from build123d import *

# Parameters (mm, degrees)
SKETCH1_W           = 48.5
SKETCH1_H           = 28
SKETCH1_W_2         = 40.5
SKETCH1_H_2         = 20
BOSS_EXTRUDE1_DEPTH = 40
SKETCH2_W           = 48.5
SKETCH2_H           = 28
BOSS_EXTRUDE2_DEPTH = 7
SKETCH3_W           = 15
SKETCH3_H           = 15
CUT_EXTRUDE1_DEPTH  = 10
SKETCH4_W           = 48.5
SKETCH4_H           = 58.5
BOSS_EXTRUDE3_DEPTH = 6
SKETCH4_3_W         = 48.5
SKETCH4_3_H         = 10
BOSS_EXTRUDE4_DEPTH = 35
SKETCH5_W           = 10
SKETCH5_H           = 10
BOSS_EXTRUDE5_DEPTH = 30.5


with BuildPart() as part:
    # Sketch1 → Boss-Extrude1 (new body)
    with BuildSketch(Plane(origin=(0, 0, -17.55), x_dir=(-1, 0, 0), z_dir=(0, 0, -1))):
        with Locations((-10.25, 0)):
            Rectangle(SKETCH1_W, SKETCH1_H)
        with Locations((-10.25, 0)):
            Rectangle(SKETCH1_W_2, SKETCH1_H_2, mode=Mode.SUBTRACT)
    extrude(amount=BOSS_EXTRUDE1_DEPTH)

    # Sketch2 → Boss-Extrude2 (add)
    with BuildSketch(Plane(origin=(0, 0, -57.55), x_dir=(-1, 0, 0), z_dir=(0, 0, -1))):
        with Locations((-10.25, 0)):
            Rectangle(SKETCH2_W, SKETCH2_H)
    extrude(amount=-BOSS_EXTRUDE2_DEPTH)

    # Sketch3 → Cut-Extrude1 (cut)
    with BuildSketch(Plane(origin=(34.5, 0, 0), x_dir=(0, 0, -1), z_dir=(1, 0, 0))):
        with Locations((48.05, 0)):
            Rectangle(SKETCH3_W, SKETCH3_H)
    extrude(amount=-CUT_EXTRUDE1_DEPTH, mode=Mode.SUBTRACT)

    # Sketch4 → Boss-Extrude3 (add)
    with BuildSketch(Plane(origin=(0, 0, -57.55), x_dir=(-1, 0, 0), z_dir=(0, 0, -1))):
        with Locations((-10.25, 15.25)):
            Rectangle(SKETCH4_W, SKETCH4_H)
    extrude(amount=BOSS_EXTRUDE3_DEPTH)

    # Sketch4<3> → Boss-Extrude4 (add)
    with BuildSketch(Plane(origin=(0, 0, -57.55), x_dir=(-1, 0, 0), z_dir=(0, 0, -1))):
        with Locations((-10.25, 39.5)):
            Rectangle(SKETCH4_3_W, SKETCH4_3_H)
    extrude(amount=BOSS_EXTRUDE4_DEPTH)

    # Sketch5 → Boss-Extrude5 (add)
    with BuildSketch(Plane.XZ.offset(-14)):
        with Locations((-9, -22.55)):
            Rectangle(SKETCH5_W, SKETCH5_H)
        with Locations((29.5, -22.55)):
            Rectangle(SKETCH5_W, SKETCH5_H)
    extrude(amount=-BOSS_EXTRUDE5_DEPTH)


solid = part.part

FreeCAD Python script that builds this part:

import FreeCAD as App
import Part
import Sketcher

V = App.Vector

doc = App.newDocument("Part")
body = doc.addObject("PartDesign::Body", "Body")

# Sketch on XY plane
sketch1 = doc.addObject("Sketcher::SketchObject", "Sketch")
body.addObject(sketch1)
sketch1.AttachmentSupport = (doc.XY_Plane, [""])
sketch1.MapMode = "FlatFace"
sketch1.AttachmentOffset = App.Placement(V(0, 0, -17.55), App.Rotation())
sketch1.addGeometry([
    Part.LineSegment(V(34, 14, 0), V(34, -14, 0)),  # 0
    Part.LineSegment(V(34, -14, 0), V(-14, -14, 0)),  # 1
    Part.LineSegment(V(-14, -14, 0), V(-14, 14, 0)),  # 2
    Part.LineSegment(V(-14, 14, 0), V(34, 14, 0)),  # 3
    Part.LineSegment(V(-10, -10, 0), V(30, -10, 0)),  # 4
    Part.LineSegment(V(30, -10, 0), V(30, 10, 0)),  # 5
    Part.LineSegment(V(30, 10, 0), V(-10, 10, 0)),  # 6
    Part.LineSegment(V(-10, 10, 0), V(-10, -10, 0)),  # 7
], False)
sketch1.addConstraint([
    Sketcher.Constraint("Coincident", 0, 2, 1, 1),
    Sketcher.Constraint("Coincident", 1, 2, 2, 1),
    Sketcher.Constraint("Coincident", 2, 2, 3, 1),
    Sketcher.Constraint("Coincident", 3, 2, 0, 1),
    Sketcher.Constraint("Coincident", 4, 2, 5, 1),
    Sketcher.Constraint("Coincident", 5, 2, 6, 1),
    Sketcher.Constraint("Coincident", 6, 2, 7, 1),
    Sketcher.Constraint("Coincident", 7, 2, 4, 1),
    Sketcher.Constraint("Vertical", 0),
    Sketcher.Constraint("Horizontal", 1),
    Sketcher.Constraint("Vertical", 2),
    Sketcher.Constraint("Horizontal", 3),
    Sketcher.Constraint("Horizontal", 4),
    Sketcher.Constraint("Vertical", 5),
    Sketcher.Constraint("Horizontal", 6),
    Sketcher.Constraint("Vertical", 7),
    Sketcher.Constraint("DistanceY", 0, 2, 0, 1, 28.0),
    Sketcher.Constraint("DistanceY", 5, 1, 5, 2, 20.0),
    Sketcher.Constraint("DistanceX", 1, 2, 1, 1, 48.5),
    Sketcher.Constraint("DistanceX", 4, 1, 4, 2, 40.5),
    Sketcher.Constraint("DistanceY", 0, 2, -1, 1, 14.0),
    Sketcher.Constraint("DistanceX", 1, 2, -1, 1, 14.0),
    Sketcher.Constraint("DistanceY", 4, 2, -1, 1, 10.0),
    Sketcher.Constraint("DistanceX", 6, 2, -1, 1, 10.0),
])
pad1 = doc.addObject("PartDesign::Pad", "Pad")
body.addObject(pad1)
pad1.Profile = sketch1
pad1.Length = 40
pad1.Reversed = True

# Sketch on XY plane
sketch2 = doc.addObject("Sketcher::SketchObject", "Sketch001")
body.addObject(sketch2)
sketch2.AttachmentSupport = (doc.XY_Plane, [""])
sketch2.MapMode = "FlatFace"
sketch2.AttachmentOffset = App.Placement(V(0, 0, -57.55), App.Rotation())
sketch2.addGeometry([
    Part.LineSegment(V(34, 14, 0), V(34, -14, 0)),
    Part.LineSegment(V(34, -14, 0), V(-14, -14, 0)),
    Part.LineSegment(V(-14, -14, 0), V(-14, 14, 0)),
    Part.LineSegment(V(-14, 14, 0), V(34, 14, 0)),
], False)
sketch2.addConstraint([
    Sketcher.Constraint("Coincident", 0, 2, 1, 1),
    Sketcher.Constraint("Coincident", 1, 2, 2, 1),
    Sketcher.Constraint("Coincident", 2, 2, 3, 1),
    Sketcher.Constraint("Coincident", 3, 2, 0, 1),
    Sketcher.Constraint("Vertical", 0),
    Sketcher.Constraint("Horizontal", 1),
    Sketcher.Constraint("Vertical", 2),
    Sketcher.Constraint("Horizontal", 3),
    Sketcher.Constraint("DistanceY", 0, 2, 0, 1, 28.0),
    Sketcher.Constraint("DistanceX", 1, 2, 1, 1, 48.5),
    Sketcher.Constraint("DistanceY", 0, 2, -1, 1, 14.0),
    Sketcher.Constraint("DistanceX", 1, 2, -1, 1, 14.0),
])
pad2 = doc.addObject("PartDesign::Pad", "Pad001")
body.addObject(pad2)
pad2.Profile = sketch2
pad2.Length = 7

# Sketch on YZ plane
sketch3 = doc.addObject("Sketcher::SketchObject", "Sketch002")
body.addObject(sketch3)
sketch3.AttachmentSupport = (doc.YZ_Plane, [""])
sketch3.MapMode = "FlatFace"
sketch3.AttachmentOffset = App.Placement(V(0, 0, 34.5), App.Rotation())
sketch3.addGeometry([
    Part.LineSegment(V(8, -41, 0), V(-8, -41, 0)),
    Part.LineSegment(V(-8, -41, 0), V(-8, -56, 0)),
    Part.LineSegment(V(-8, -56, 0), V(8, -56, 0)),
    Part.LineSegment(V(8, -56, 0), V(8, -41, 0)),
], False)
sketch3.addConstraint([
    Sketcher.Constraint("Coincident", 0, 2, 1, 1),
    Sketcher.Constraint("Coincident", 1, 2, 2, 1),
    Sketcher.Constraint("Coincident", 2, 2, 3, 1),
    Sketcher.Constraint("Coincident", 3, 2, 0, 1),
    Sketcher.Constraint("Horizontal", 0),
    Sketcher.Constraint("Vertical", 1),
    Sketcher.Constraint("Horizontal", 2),
    Sketcher.Constraint("Vertical", 3),
    Sketcher.Constraint("Equal", 2, 1),
    Sketcher.Constraint("DistanceX", 0, 2, 0, 1, 15.0),
    Sketcher.Constraint("DistanceX", 0, 2, -1, 1, 7.5),
    Sketcher.Constraint("DistanceY", 0, 2, -1, 1, 40.55),
])
pocket1 = doc.addObject("PartDesign::Pocket", "Pocket")
body.addObject(pocket1)
pocket1.Profile = sketch3
pocket1.Length = 10

# Sketch on XY plane
sketch4 = doc.addObject("Sketcher::SketchObject", "Sketch003")
body.addObject(sketch4)
sketch4.AttachmentSupport = (doc.XY_Plane, [""])
sketch4.MapMode = "FlatFace"
sketch4.AttachmentOffset = App.Placement(V(0, 0, -57.55), App.Rotation())
sketch4.addGeometry([
    Part.LineSegment(V(34, 44, 0), V(34, -14, 0)),
    Part.LineSegment(V(34, -14, 0), V(-14, -14, 0)),
    Part.LineSegment(V(-14, -14, 0), V(-14, 44, 0)),
    Part.LineSegment(V(-14, 44, 0), V(34, 44, 0)),
], False)
sketch4.addConstraint([
    Sketcher.Constraint("Coincident", 0, 2, 1, 1),
    Sketcher.Constraint("Coincident", 1, 2, 2, 1),
    Sketcher.Constraint("Coincident", 2, 2, 3, 1),
    Sketcher.Constraint("Coincident", 3, 2, 0, 1),
    Sketcher.Constraint("Vertical", 0),
    Sketcher.Constraint("Horizontal", 1),
    Sketcher.Constraint("Vertical", 2),
    Sketcher.Constraint("Horizontal", 3),
    Sketcher.Constraint("DistanceX", 1, 2, 1, 1, 48.5),
    Sketcher.Constraint("DistanceY", 0, 2, 0, 1, 58.5),
    Sketcher.Constraint("DistanceY", 0, 2, -1, 1, 14.0),
    Sketcher.Constraint("DistanceX", 1, 2, -1, 1, 14.0),
])
pad3 = doc.addObject("PartDesign::Pad", "Pad002")
body.addObject(pad3)
pad3.Profile = sketch4
pad3.Length = 6
pad3.Reversed = True

# Sketch on XY plane
sketch5 = doc.addObject("Sketcher::SketchObject", "Sketch004")
body.addObject(sketch5)
sketch5.AttachmentSupport = (doc.XY_Plane, [""])
sketch5.MapMode = "FlatFace"
sketch5.AttachmentOffset = App.Placement(V(0, 0, -57.55), App.Rotation())
sketch5.addGeometry([
    Part.LineSegment(V(34, 44, 0), V(34, 34, 0)),
    Part.LineSegment(V(34, 34, 0), V(-14, 34, 0)),
    Part.LineSegment(V(-14, 34, 0), V(-14, 44, 0)),
    Part.LineSegment(V(-14, 44, 0), V(34, 44, 0)),
], False)
sketch5.addConstraint([
    Sketcher.Constraint("Coincident", 0, 2, 1, 1),
    Sketcher.Constraint("Coincident", 1, 2, 2, 1),
    Sketcher.Constraint("Coincident", 2, 2, 3, 1),
    Sketcher.Constraint("Coincident", 3, 2, 0, 1),
    Sketcher.Constraint("Vertical", 0),
    Sketcher.Constraint("Horizontal", 1),
    Sketcher.Constraint("Vertical", 2),
    Sketcher.Constraint("Horizontal", 3),
    Sketcher.Constraint("DistanceY", 0, 2, 0, 1, 10.0),
    Sketcher.Constraint("DistanceX", 1, 2, 1, 1, 48.5),
    Sketcher.Constraint("DistanceX", 1, 2, -1, 1, 14.0),
    Sketcher.Constraint("DistanceY", -1, 1, 0, 2, 34.5),
])
pad4 = doc.addObject("PartDesign::Pad", "Pad003")
body.addObject(pad4)
pad4.Profile = sketch5
pad4.Length = 35
pad4.Reversed = True

# Sketch on XZ plane
sketch6 = doc.addObject("Sketcher::SketchObject", "Sketch005")
body.addObject(sketch6)
sketch6.AttachmentSupport = (doc.XZ_Plane, [""])
sketch6.MapMode = "FlatFace"
sketch6.AttachmentOffset = App.Placement(V(0, 0, -14), App.Rotation())
sketch6.addGeometry([
    Part.LineSegment(V(-14, -18, 0), V(-14, -28, 0)),  # 0
    Part.LineSegment(V(-14, -28, 0), V(-4, -28, 0)),  # 1
    Part.LineSegment(V(-4, -28, 0), V(-4, -18, 0)),  # 2
    Part.LineSegment(V(-4, -18, 0), V(-14, -18, 0)),  # 3
    Part.LineSegment(V(24, -18, 0), V(24, -28, 0)),  # 4
    Part.LineSegment(V(24, -28, 0), V(34, -28, 0)),  # 5
    Part.LineSegment(V(34, -28, 0), V(34, -18, 0)),  # 6
    Part.LineSegment(V(34, -18, 0), V(24, -18, 0)),  # 7
], False)
sketch6.addConstraint([
    Sketcher.Constraint("Coincident", 0, 2, 1, 1),
    Sketcher.Constraint("Coincident", 1, 2, 2, 1),
    Sketcher.Constraint("Coincident", 2, 2, 3, 1),
    Sketcher.Constraint("Coincident", 3, 2, 0, 1),
    Sketcher.Constraint("Coincident", 4, 2, 5, 1),
    Sketcher.Constraint("Coincident", 5, 2, 6, 1),
    Sketcher.Constraint("Coincident", 6, 2, 7, 1),
    Sketcher.Constraint("Coincident", 7, 2, 4, 1),
    Sketcher.Constraint("Vertical", 0),
    Sketcher.Constraint("Horizontal", 1),
    Sketcher.Constraint("Vertical", 2),
    Sketcher.Constraint("Horizontal", 3),
    Sketcher.Constraint("Vertical", 4),
    Sketcher.Constraint("Horizontal", 5),
    Sketcher.Constraint("Vertical", 6),
    Sketcher.Constraint("Horizontal", 7),
    Sketcher.Constraint("Horizontal", 1, 2, 4, 2),
    Sketcher.Constraint("Horizontal", 3, 2, 6, 2),
    Sketcher.Constraint("Equal", 3, 5),
    Sketcher.Constraint("Equal", 7, 0),
    Sketcher.Constraint("DistanceX", 1, 1, 1, 2, 10.0),
    Sketcher.Constraint("DistanceX", 0, 2, -1, 1, 14.0),
    Sketcher.Constraint("DistanceX", -1, 1, 4, 2, 24.5),
    Sketcher.Constraint("DistanceY", 0, 2, -1, 1, 27.55),
])
pad5 = doc.addObject("PartDesign::Pad", "Pad004")
body.addObject(pad5)
pad5.Profile = sketch6
pad5.Length = 30.5
pad5.Reversed = True

doc.recompute()
